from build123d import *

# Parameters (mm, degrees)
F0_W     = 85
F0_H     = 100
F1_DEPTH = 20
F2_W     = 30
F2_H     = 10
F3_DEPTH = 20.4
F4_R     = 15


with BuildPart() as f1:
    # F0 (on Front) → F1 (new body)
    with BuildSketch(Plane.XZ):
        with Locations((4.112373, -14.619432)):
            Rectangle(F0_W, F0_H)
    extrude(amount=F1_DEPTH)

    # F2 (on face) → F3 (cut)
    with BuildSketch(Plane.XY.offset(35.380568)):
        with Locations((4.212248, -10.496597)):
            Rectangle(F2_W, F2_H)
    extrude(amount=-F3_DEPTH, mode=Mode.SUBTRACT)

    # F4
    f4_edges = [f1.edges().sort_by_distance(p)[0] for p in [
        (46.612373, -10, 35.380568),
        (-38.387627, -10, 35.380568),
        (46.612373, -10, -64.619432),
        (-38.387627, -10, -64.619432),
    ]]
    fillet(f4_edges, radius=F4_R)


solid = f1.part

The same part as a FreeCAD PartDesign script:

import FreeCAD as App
import Part
import Sketcher
from FreeCAD import Vector


def edges_at(feature, points):
    """Names of the edges that pass closest to the given points."""
    edges = feature.Shape.Edges
    near = lambda p: min(range(len(edges)), key=lambda i: edges[i].distToShape(Part.Vertex(*p))[0])
    return sorted({f"Edge{near(p) + 1}" for p in points})

doc = App.newDocument("Part")
body = doc.addObject("PartDesign::Body", "Body")

# Sketch on XZ plane
sketch1 = body.newObject("Sketcher::SketchObject", "Sketch")
sketch1.AttachmentSupport = (doc.getObject("XZ_Plane"), [""])
sketch1.MapMode = "FlatFace"
sketch1.addGeometry([
    Part.LineSegment(Vector(-38, 35, 0), Vector(-38, -65, 0)),
    Part.LineSegment(Vector(-38, -65, 0), Vector(47, -65, 0)),
    Part.LineSegment(Vector(47, -65, 0), Vector(47, 35, 0)),
    Part.LineSegment(Vector(47, 35, 0), Vector(-38, 35, 0)),
], False)
sketch1.addConstraint([
    Sketcher.Constraint("Coincident", 0, 2, 1, 1),
    Sketcher.Constraint("Coincident", 1, 2, 2, 1),
    Sketcher.Constraint("Coincident", 2, 2, 3, 1),
    Sketcher.Constraint("Coincident", 3, 2, 0, 1),
    Sketcher.Constraint("Vertical", 0),
    Sketcher.Constraint("Horizontal", 1),
    Sketcher.Constraint("Vertical", 2),
    Sketcher.Constraint("Horizontal", 3),
    Sketcher.Constraint("DistanceX", 1, 1, 1, 2, 85.0),
    Sketcher.Constraint("DistanceY", 0, 2, 0, 1, 100.0),
    Sketcher.Constraint("DistanceX", 0, 2, -1, 1, 38.387627),
    Sketcher.Constraint("DistanceY", 0, 2, -1, 1, 64.619432),
])
pad1 = body.newObject("PartDesign::Pad", "Pad")
pad1.Profile = sketch1
pad1.Length = 20

# Sketch on XY plane
sketch2 = body.newObject("Sketcher::SketchObject", "Sketch001")
sketch2.AttachmentSupport = (doc.getObject("XY_Plane"), [""])
sketch2.MapMode = "FlatFace"
sketch2.AttachmentOffset = App.Placement(Vector(0, 0, 35.380568), App.Rotation())
sketch2.addGeometry([
    Part.LineSegment(Vector(-11, -5, 0), Vector(-11, -15, 0)),
    Part.LineSegment(Vector(-11, -15, 0), Vector(19, -15, 0)),
    Part.LineSegment(Vector(19, -15, 0), Vector(19, -5, 0)),
    Part.LineSegment(Vector(19, -5, 0), Vector(-11, -5, 0)),
], False)
sketch2.addConstraint([
    Sketcher.Constraint("Coincident", 0, 2, 1, 1),
    Sketcher.Constraint("Coincident", 1, 2, 2, 1),
    Sketcher.Constraint("Coincident", 2, 2, 3, 1),
    Sketcher.Constraint("Coincident", 3, 2, 0, 1),
    Sketcher.Constraint("Vertical", 0),
    Sketcher.Constraint("Horizontal", 1),
    Sketcher.Constraint("Vertical", 2),
    Sketcher.Constraint("Horizontal", 3),
    Sketcher.Constraint("DistanceX", 1, 1, 1, 2, 30.0),
    Sketcher.Constraint("DistanceY", 0, 2, 0, 1, 10.0),
    Sketcher.Constraint("DistanceX", 0, 2, -1, 1, 10.787752),
    Sketcher.Constraint("DistanceY", 0, 2, -1, 1, 15.496597),
])
pocket1 = body.newObject("PartDesign::Pocket", "Pocket")
pocket1.Profile = sketch2
pocket1.Length = 20.4
doc.recompute()

fillet = body.newObject("PartDesign::Fillet", "Fillet")
fillet.Base = (pocket1, edges_at(pocket1, [
    (46.612, -10, 35.381),
    (-38.388, -10, 35.381),
    (46.612, -10, -64.619),
    (-38.388, -10, -64.619),
]))
fillet.Radius = 15

doc.recompute()
